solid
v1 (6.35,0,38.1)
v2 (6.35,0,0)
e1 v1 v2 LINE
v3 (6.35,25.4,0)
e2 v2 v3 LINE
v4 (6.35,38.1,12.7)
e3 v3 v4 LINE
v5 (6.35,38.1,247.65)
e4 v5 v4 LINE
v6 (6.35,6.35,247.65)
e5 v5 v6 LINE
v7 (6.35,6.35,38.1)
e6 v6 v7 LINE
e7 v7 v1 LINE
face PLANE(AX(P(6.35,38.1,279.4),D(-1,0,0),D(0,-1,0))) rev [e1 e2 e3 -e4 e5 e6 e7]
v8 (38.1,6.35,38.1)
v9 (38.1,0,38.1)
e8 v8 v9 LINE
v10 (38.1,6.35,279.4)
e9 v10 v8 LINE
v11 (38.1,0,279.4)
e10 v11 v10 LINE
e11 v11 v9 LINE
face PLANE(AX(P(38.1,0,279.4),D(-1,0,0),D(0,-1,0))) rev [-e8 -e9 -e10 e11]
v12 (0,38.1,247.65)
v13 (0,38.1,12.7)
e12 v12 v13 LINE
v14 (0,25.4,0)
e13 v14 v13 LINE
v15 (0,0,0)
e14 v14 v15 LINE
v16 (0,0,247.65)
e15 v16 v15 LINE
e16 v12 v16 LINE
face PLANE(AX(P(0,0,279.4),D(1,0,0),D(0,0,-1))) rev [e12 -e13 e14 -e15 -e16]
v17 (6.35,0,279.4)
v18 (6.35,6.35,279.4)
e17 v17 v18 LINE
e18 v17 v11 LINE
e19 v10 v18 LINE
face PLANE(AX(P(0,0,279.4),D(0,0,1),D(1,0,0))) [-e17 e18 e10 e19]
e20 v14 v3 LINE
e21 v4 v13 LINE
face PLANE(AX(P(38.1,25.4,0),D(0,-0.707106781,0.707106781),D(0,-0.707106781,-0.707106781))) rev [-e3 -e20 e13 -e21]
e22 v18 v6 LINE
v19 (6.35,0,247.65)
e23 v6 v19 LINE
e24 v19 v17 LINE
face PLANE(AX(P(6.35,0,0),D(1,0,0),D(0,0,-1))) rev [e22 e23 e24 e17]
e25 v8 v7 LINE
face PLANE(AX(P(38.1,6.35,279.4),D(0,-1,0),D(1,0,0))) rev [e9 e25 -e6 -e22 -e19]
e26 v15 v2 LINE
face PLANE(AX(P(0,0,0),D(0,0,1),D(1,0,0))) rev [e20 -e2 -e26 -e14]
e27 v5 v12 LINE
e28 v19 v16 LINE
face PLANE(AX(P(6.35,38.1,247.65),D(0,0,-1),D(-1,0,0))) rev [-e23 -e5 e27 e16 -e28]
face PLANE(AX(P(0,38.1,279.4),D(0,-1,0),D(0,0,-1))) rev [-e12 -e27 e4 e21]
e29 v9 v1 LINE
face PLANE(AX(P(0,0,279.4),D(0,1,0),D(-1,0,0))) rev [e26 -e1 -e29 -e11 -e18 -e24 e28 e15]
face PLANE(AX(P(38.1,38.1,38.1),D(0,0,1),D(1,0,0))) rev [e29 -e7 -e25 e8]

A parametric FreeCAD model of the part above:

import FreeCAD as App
import Part
import Sketcher
from FreeCAD import Vector
Q = App.Units.Quantity

doc = App.newDocument("Part")
body = doc.addObject("PartDesign::Body", "Body")

sketch1 = body.newObject("Sketcher::SketchObject", "Sketch")
sketch1.AttachmentSupport = (doc.getObject("XY_Plane"), [""])
sketch1.MapMode = "FlatFace"
sketch1.addGeometry(Part.LineSegment(Vector(0, 38, 0), Vector(0, 0, 0)), False)
sketch1.addGeometry(Part.LineSegment(Vector(0, 0, 0), Vector(38, 0, 0)), False)
sketch1.addGeometry(Part.LineSegment(Vector(38, 0, 0), Vector(38, 6, 0)), False)
sketch1.addGeometry(Part.LineSegment(Vector(38, 6, 0), Vector(6, 6, 0)), False)
sketch1.addGeometry(Part.LineSegment(Vector(6, 6, 0), Vector(6, 38, 0)), False)
sketch1.addGeometry(Part.LineSegment(Vector(6, 38, 0), Vector(0, 38, 0)), False)
sketch1.addConstraint(Sketcher.Constraint("Coincident", 0, 2, 1, 1))
sketch1.addConstraint(Sketcher.Constraint("Coincident", 1, 2, 2, 1))
sketch1.addConstraint(Sketcher.Constraint("Coincident", 2, 2, 3, 1))
sketch1.addConstraint(Sketcher.Constraint("Coincident", 3, 2, 4, 1))
sketch1.addConstraint(Sketcher.Constraint("Coincident", 4, 2, 5, 1))
sketch1.addConstraint(Sketcher.Constraint("Coincident", 5, 2, 0, 1))
sketch1.addConstraint(Sketcher.Constraint("Vertical", 0))
sketch1.addConstraint(Sketcher.Constraint("Horizontal", 1))
sketch1.addConstraint(Sketcher.Constraint("Vertical", 2))
sketch1.addConstraint(Sketcher.Constraint("Horizontal", 3))
sketch1.addConstraint(Sketcher.Constraint("Vertical", 4))
sketch1.addConstraint(Sketcher.Constraint("Horizontal", 5))
sketch1.addConstraint(Sketcher.Constraint("Coincident", 0, 2, -1, 1))
sketch1.addConstraint(Sketcher.Constraint("Equal", 1, 0))
sketch1.addConstraint(Sketcher.Constraint("Equal", 5, 2))
sketch1.addConstraint(Sketcher.Constraint("DistanceX", 1, 1, 1, 2, Q("1.5 in")))
sketch1.addConstraint(Sketcher.Constraint("DistanceX", 3, 2, 3, 1, Q("1.25 in")))
pad1 = body.newObject("PartDesign::Pad", "Pad")
pad1.Profile = sketch1
pad1.Length = Q("11 in")

sketch2 = body.newObject("Sketcher::SketchObject", "Sketch001")
sketch2.AttachmentSupport = (doc.getObject("YZ_Plane"), [""])
sketch2.MapMode = "FlatFace"
sketch2.addGeometry(Part.LineSegment(Vector(38, 248, 0), Vector(0, 248, 0)), False)
sketch2.addGeometry(Part.LineSegment(Vector(0, 248, 0), Vector(0, 279, 0)), False)
sketch2.addGeometry(Part.LineSegment(Vector(0, 279, 0), Vector(38, 279, 0)), False)
sketch2.addGeometry(Part.LineSegment(Vector(38, 279, 0), Vector(38, 248, 0)), False)
sketch2.addConstraint(Sketcher.Constraint("Coincident", 0, 2, 1, 1))
sketch2.addConstraint(Sketcher.Constraint("Coincident", 1, 2, 2, 1))
sketch2.addConstraint(Sketcher.Constraint("Coincident", 2, 2, 3, 1))
sketch2.addConstraint(Sketcher.Constraint("Coincident", 3, 2, 0, 1))
sketch2.addConstraint(Sketcher.Constraint("Horizontal", 0))
sketch2.addConstraint(Sketcher.Constraint("Vertical", 1))
sketch2.addConstraint(Sketcher.Constraint("Horizontal", 2))
sketch2.addConstraint(Sketcher.Constraint("Vertical", 3))
sketch2.addConstraint(Sketcher.Constraint("PointOnObject", 0, 2, -2))
sketch2.addConstraint(Sketcher.Constraint("DistanceX", 0, 2, 0, 1, Q("1.5 in")))
sketch2.addConstraint(Sketcher.Constraint("DistanceY", -1, 1, 1, 2, Q("11 in")))
sketch2.addConstraint(Sketcher.Constraint("DistanceY", 1, 1, 1, 2, Q("1.25 in")))
pocket1 = body.newObject("PartDesign::Pocket", "Pocket")
pocket1.Profile = sketch2
pocket1.Length = Q("0.25 in")
pocket1.Reversed = True

sketch3 = body.newObject("Sketcher::SketchObject", "Sketch002")
sketch3.AttachmentSupport = (doc.getObject("XZ_Plane"), [""])
sketch3.MapMode = "FlatFace"
sketch3.addGeometry(Part.LineSegment(Vector(6, 38, 0), Vector(6, 0, 0)), False)
sketch3.addGeometry(Part.LineSegment(Vector(6, 0, 0), Vector(38, 0, 0)), False)
sketch3.addGeometry(Part.LineSegment(Vector(38, 0, 0), Vector(38, 38, 0)), False)
sketch3.addGeometry(Part.LineSegment(Vector(38, 38, 0), Vector(6, 38, 0)), False)
sketch3.addConstraint(Sketcher.Constraint("Coincident", 0, 2, 1, 1))
sketch3.addConstraint(Sketcher.Constraint("Coincident", 1, 2, 2, 1))
sketch3.addConstraint(Sketcher.Constraint("Coincident", 2, 2, 3, 1))
sketch3.addConstraint(Sketcher.Constraint("Coincident", 3, 2, 0, 1))
sketch3.addConstraint(Sketcher.Constraint("Vertical", 0))
sketch3.addConstraint(Sketcher.Constraint("Horizontal", 1))
sketch3.addConstraint(Sketcher.Constraint("Vertical", 2))
sketch3.addConstraint(Sketcher.Constraint("Horizontal", 3))
sketch3.addConstraint(Sketcher.Constraint("PointOnObject", 0, 2, -1))
sketch3.addConstraint(Sketcher.Constraint("DistanceY", 0, 2, 0, 1, Q("1.5 in")))
sketch3.addConstraint(Sketcher.Constraint("DistanceX", 1, 1, 1, 2, Q("1.25 in")))
sketch3.addConstraint(Sketcher.Constraint("DistanceX", -1, 1, 1, 2, Q("1.5 in")))
pocket2 = body.newObject("PartDesign::Pocket", "Pocket001")
pocket2.Profile = sketch3
pocket2.Type = "ThroughAll"

sketch4 = body.newObject("Sketcher::SketchObject", "Sketch003")
sketch4.AttachmentSupport = (doc.getObject("YZ_Plane"), [""])
sketch4.MapMode = "FlatFace"
sketch4.addGeometry(Part.LineSegment(Vector(38, 0, 0), Vector(25, 0, 0)), False)
sketch4.addGeometry(Part.LineSegment(Vector(25, 0, 0), Vector(38, 13, 0)), False)
sketch4.addGeometry(Part.LineSegment(Vector(38, 13, 0), Vector(38, 0, 0)), False)
sketch4.addConstraint(Sketcher.Constraint("Coincident", 0, 2, 1, 1))
sketch4.addConstraint(Sketcher.Constraint("Coincident", 1, 2, 2, 1))
sketch4.addConstraint(Sketcher.Constraint("Coincident", 2, 2, 0, 1))
sketch4.addConstraint(Sketcher.Constraint("Horizontal", 0))
sketch4.addConstraint(Sketcher.Constraint("Vertical", 2))
sketch4.addConstraint(Sketcher.Constraint("PointOnObject", 0, 2, -1))
sketch4.addConstraint(Sketcher.Constraint("Equal", 0, 2))
sketch4.addConstraint(Sketcher.Constraint("DistanceX", 0, 2, 0, 1, Q("0.5 in")))
sketch4.addConstraint(Sketcher.Constraint("DistanceX", -1, 1, 0, 2, Q("1 in")))
pocket3 = body.newObject("PartDesign::Pocket", "Pocket002")
pocket3.Profile = sketch4
pocket3.Type = "ThroughAll"
pocket3.Reversed = True

doc.recompute()
